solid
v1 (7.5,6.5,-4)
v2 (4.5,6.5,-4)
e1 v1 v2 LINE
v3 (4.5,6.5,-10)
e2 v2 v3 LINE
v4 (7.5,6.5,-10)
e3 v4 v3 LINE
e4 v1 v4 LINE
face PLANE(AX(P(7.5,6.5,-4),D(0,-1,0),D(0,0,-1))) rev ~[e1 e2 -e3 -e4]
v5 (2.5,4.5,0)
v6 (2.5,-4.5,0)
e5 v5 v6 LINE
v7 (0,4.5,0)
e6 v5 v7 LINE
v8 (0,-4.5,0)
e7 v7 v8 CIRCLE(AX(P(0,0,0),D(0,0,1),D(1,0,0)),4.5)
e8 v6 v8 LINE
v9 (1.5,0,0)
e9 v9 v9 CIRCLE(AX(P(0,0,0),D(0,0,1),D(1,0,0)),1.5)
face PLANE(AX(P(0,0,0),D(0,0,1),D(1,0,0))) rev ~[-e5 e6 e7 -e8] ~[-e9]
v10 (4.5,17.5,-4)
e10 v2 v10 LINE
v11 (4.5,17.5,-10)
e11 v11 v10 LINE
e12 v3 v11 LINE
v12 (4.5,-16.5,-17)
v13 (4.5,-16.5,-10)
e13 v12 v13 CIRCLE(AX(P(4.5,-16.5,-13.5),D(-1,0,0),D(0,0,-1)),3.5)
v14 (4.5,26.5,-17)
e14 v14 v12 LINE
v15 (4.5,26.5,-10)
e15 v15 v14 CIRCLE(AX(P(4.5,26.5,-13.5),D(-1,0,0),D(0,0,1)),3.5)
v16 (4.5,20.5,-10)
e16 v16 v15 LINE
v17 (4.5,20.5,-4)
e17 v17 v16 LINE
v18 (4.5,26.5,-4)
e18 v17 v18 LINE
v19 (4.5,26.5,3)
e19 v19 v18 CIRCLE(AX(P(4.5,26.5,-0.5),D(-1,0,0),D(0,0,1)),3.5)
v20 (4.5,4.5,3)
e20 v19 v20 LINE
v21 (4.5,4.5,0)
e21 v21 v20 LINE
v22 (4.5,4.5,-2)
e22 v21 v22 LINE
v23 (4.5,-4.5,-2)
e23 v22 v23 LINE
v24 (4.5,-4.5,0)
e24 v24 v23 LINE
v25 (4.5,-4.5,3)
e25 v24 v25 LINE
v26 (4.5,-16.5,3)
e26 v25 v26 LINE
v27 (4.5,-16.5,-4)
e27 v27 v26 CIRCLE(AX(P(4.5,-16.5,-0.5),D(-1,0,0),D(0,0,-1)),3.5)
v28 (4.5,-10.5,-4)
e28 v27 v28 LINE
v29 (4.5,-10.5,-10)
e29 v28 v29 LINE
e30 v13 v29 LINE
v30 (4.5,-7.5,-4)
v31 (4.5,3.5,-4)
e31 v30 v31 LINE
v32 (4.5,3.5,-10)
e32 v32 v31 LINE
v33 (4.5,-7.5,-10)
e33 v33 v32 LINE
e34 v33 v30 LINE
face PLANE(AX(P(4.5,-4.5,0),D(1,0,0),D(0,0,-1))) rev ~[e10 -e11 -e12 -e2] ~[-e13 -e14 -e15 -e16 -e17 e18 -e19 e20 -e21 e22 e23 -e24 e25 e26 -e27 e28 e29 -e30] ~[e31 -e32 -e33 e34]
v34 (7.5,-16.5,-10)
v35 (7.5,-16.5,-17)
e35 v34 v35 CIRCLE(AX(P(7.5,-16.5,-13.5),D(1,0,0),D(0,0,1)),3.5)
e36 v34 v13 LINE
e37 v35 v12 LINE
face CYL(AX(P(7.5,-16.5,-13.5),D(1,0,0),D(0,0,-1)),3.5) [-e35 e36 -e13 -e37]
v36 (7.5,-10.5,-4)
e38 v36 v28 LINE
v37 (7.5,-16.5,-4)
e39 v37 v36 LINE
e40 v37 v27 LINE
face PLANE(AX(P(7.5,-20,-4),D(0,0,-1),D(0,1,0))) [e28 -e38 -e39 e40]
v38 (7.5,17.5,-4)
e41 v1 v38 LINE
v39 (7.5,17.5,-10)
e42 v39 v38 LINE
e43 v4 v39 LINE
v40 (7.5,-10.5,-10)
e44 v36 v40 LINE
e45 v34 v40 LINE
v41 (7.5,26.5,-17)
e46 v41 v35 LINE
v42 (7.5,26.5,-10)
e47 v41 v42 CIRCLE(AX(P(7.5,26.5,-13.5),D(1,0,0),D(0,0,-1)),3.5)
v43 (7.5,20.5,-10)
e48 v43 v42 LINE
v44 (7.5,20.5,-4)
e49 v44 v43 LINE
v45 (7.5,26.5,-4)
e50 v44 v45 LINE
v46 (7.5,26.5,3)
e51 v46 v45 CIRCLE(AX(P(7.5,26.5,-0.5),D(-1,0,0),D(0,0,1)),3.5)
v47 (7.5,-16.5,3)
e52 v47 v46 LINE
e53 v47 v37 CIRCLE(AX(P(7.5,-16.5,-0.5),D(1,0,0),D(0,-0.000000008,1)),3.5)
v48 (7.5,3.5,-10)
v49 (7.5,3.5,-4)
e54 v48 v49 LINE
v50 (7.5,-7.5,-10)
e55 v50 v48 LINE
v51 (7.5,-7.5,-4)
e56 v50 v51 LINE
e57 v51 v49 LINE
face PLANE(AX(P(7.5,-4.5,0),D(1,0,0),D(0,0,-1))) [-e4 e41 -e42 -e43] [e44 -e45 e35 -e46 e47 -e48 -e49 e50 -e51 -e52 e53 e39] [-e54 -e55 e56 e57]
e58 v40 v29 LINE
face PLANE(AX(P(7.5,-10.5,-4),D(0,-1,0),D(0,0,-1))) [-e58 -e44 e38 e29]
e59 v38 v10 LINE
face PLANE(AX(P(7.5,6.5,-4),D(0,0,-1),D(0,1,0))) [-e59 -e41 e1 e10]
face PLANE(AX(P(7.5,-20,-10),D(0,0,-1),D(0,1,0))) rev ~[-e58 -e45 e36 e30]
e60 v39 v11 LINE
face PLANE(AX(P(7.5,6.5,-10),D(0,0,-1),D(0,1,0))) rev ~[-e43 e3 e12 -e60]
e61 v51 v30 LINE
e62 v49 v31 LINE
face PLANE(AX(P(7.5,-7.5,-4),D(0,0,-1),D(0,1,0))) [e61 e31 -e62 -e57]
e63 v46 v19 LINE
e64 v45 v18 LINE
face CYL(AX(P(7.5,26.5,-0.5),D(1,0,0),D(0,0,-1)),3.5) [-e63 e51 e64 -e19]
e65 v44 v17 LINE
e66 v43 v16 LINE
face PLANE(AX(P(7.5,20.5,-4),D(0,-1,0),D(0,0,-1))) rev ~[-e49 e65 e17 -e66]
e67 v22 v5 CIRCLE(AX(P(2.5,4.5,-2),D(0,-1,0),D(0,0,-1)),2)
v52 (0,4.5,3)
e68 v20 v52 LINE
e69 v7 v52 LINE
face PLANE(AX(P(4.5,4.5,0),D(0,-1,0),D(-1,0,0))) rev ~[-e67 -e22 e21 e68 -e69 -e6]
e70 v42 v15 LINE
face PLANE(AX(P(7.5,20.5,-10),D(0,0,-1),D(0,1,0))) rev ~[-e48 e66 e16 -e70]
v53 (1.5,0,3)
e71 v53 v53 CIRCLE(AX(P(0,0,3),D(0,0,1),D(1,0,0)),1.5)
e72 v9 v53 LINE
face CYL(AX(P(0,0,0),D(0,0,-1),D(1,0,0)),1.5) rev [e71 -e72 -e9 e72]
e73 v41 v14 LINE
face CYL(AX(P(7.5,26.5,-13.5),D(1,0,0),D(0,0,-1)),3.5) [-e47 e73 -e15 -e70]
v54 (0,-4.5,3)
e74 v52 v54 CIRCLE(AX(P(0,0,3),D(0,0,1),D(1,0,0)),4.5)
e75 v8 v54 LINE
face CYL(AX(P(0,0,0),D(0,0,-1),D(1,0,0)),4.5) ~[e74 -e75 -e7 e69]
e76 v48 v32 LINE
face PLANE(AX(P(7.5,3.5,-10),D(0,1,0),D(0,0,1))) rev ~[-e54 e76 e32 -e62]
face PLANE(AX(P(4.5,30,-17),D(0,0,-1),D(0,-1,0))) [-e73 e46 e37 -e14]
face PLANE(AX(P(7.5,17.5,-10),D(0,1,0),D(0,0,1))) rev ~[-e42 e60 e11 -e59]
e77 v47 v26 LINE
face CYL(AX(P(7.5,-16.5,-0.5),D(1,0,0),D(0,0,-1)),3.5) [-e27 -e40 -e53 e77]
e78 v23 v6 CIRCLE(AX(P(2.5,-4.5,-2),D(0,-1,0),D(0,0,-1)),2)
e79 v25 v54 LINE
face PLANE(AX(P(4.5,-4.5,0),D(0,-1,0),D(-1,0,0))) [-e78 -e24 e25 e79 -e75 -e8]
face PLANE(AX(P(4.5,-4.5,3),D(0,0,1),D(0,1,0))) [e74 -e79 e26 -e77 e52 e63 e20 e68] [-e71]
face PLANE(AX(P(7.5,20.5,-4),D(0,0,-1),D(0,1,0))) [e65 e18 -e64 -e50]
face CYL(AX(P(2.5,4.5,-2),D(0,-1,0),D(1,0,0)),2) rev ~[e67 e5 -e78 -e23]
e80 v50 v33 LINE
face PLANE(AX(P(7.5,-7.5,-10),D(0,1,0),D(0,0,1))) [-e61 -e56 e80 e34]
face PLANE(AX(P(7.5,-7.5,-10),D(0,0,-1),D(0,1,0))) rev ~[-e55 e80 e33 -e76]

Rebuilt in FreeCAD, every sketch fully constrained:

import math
import FreeCAD as App
import Part
import Sketcher
from FreeCAD import Vector


def edges_at(feature, points):
    """Names of the edges that pass closest to the given points."""
    edges = feature.Shape.Edges
    near = lambda p: min(range(len(edges)), key=lambda i: edges[i].distToShape(Part.Vertex(*p))[0])
    return sorted({f"Edge{near(p) + 1}" for p in points})

doc = App.newDocument("Part")
body = doc.addObject("PartDesign::Body", "Body")

# Sketch on XY plane
sketch1 = body.newObject("Sketcher::SketchObject", "Sketch")
sketch1.AttachmentSupport = (doc.getObject("XY_Plane"), [""])
sketch1.MapMode = "FlatFace"
sketch1.addGeometry([
    Part.ArcOfCircle(Part.Circle(Vector(0, 0, 0), Vector(0, 0, 1), 4.5), math.radians(90), math.radians(270)),  # 0
    Part.LineSegment(Vector(0, -4.5, 0), Vector(4.5, -4.5, 0)),  # 1
    Part.LineSegment(Vector(4.5, -4.5, 0), Vector(4.5, 4.5, 0)),  # 2
    Part.LineSegment(Vector(4.5, 4.5, 0), Vector(0, 4.5, 0)),  # 3
    Part.Circle(Vector(0, 0, 0), Vector(0, 0, 1), 1.5),  # 4
], False)
sketch1.addConstraint([
    Sketcher.Constraint("Tangent", 0, 2, 1, 1),
    Sketcher.Constraint("Coincident", 1, 2, 2, 1),
    Sketcher.Constraint("Coincident", 2, 2, 3, 1),
    Sketcher.Constraint("Tangent", 3, 2, 0, 1),
    Sketcher.Constraint("Horizontal", 1),
    Sketcher.Constraint("Vertical", 2),
    Sketcher.Constraint("Horizontal", 3),
    Sketcher.Constraint("Coincident", 0, 3, -1, 1),
    Sketcher.Constraint("Coincident", 4, 3, -1, 1),
    Sketcher.Constraint("Diameter", 4, 3.0),
    Sketcher.Constraint("Radius", 0, 4.5),
    Sketcher.Constraint("DistanceX", 1, 1, 1, 2, 4.5),
])
pad1 = body.newObject("PartDesign::Pad", "Pad")
pad1.Profile = sketch1
pad1.Length = 3

# Sketch on YZ plane
sketch2 = body.newObject("Sketcher::SketchObject", "Sketch001")
sketch2.AttachmentSupport = (doc.getObject("YZ_Plane"), [""])
sketch2.MapMode = "FlatFace"
sketch2.AttachmentOffset = App.Placement(Vector(0, 0, 4.5), App.Rotation())
sketch2.addGeometry([
    Part.LineSegment(Vector(-20, 3, 0), Vector(-20, -17, 0)),
    Part.LineSegment(Vector(-20, -17, 0), Vector(30, -17, 0)),
    Part.LineSegment(Vector(30, -17, 0), Vector(30, 3, 0)),
    Part.LineSegment(Vector(30, 3, 0), Vector(-20, 3, 0)),
], False)
sketch2.addConstraint([
    Sketcher.Constraint("Coincident", 0, 2, 1, 1),
    Sketcher.Constraint("Coincident", 1, 2, 2, 1),
    Sketcher.Constraint("Coincident", 2, 2, 3, 1),
    Sketcher.Constraint("Coincident", 3, 2, 0, 1),
    Sketcher.Constraint("Vertical", 0),
    Sketcher.Constraint("Horizontal", 1),
    Sketcher.Constraint("Vertical", 2),
    Sketcher.Constraint("Horizontal", 3),
    Sketcher.Constraint("DistanceX", 1, 1, 1, 2, 50.0),
    Sketcher.Constraint("DistanceY", 0, 2, 0, 1, 20.0),
    Sketcher.Constraint("DistanceX", 0, 2, -1, 1, 20.0),
    Sketcher.Constraint("DistanceY", 0, 2, -1, 1, 17.0),
])
pad2 = body.newObject("PartDesign::Pad", "Pad001")
pad2.Profile = sketch2
pad2.Length = 3

# Sketch on YZ plane
sketch3 = body.newObject("Sketcher::SketchObject", "Sketch002")
sketch3.AttachmentSupport = (doc.getObject("YZ_Plane"), [""])
sketch3.MapMode = "FlatFace"
sketch3.AttachmentOffset = App.Placement(Vector(0, 0, 7.5), App.Rotation())
sketch3.addGeometry([
    Part.LineSegment(Vector(-10, -4, 0), Vector(-20, -4, 0)),  # 0
    Part.LineSegment(Vector(-20, -4, 0), Vector(-20, -10, 0)),  # 1
    Part.LineSegment(Vector(-20, -10, 0), Vector(-10, -10, 0)),  # 2
    Part.LineSegment(Vector(-10, -10, 0), Vector(-10, -4, 0)),  # 3
    Part.LineSegment(Vector(4, -4, 0), Vector(-8, -4, 0)),  # 4
    Part.LineSegment(Vector(-8, -4, 0), Vector(-8, -10, 0)),  # 5
    Part.LineSegment(Vector(-8, -10, 0), Vector(4, -10, 0)),  # 6
    Part.LineSegment(Vector(4, -10, 0), Vector(4, -4, 0)),  # 7
    Part.LineSegment(Vector(30, -10, 0), Vector(30, -4, 0)),  # 8
    Part.LineSegment(Vector(30, -4, 0), Vector(20, -4, 0)),  # 9
    Part.LineSegment(Vector(20, -4, 0), Vector(20, -10, 0)),  # 10
    Part.LineSegment(Vector(20, -10, 0), Vector(30, -10, 0)),  # 11
    Part.LineSegment(Vector(18, -4, 0), Vector(6, -4, 0)),  # 12
    Part.LineSegment(Vector(6, -4, 0), Vector(6, -10, 0)),  # 13
    Part.LineSegment(Vector(6, -10, 0), Vector(18, -10, 0)),  # 14
    Part.LineSegment(Vector(18, -10, 0), Vector(18, -4, 0)),  # 15
], False)
sketch3.addConstraint([
    Sketcher.Constraint("Coincident", 0, 2, 1, 1),
    Sketcher.Constraint("Coincident", 1, 2, 2, 1),
    Sketcher.Constraint("Coincident", 2, 2, 3, 1),
    Sketcher.Constraint("Coincident", 3, 2, 0, 1),
    Sketcher.Constraint("Coincident", 4, 2, 5, 1),
    Sketcher.Constraint("Coincident", 5, 2, 6, 1),
    Sketcher.Constraint("Coincident", 6, 2, 7, 1),
    Sketcher.Constraint("Coincident", 7, 2, 4, 1),
    Sketcher.Constraint("Coincident", 8, 2, 9, 1),
    Sketcher.Constraint("Coincident", 9, 2, 10, 1),
    Sketcher.Constraint("Coincident", 10, 2, 11, 1),
    Sketcher.Constraint("Coincident", 11, 2, 8, 1),
    Sketcher.Constraint("Coincident", 12, 2, 13, 1),
    Sketcher.Constraint("Coincident", 13, 2, 14, 1),
    Sketcher.Constraint("Coincident", 14, 2, 15, 1),
    Sketcher.Constraint("Coincident", 15, 2, 12, 1),
    Sketcher.Constraint("Horizontal", 0),
    Sketcher.Constraint("Vertical", 1),
    Sketcher.Constraint("Horizontal", 2),
    Sketcher.Constraint("Vertical", 3),
    Sketcher.Constraint("Horizontal", 4),
    Sketcher.Constraint("Vertical", 5),
    Sketcher.Constraint("Horizontal", 6),
    Sketcher.Constraint("Vertical", 7),
    Sketcher.Constraint("Vertical", 8),
    Sketcher.Constraint("Horizontal", 9),
    Sketcher.Constraint("Vertical", 10),
    Sketcher.Constraint("Horizontal", 11),
    Sketcher.Constraint("Horizontal", 12),
    Sketcher.Constraint("Vertical", 13),
    Sketcher.Constraint("Horizontal", 14),
    Sketcher.Constraint("Vertical", 15),
    Sketcher.Constraint("Horizontal", 3, 2, 4, 2),
    Sketcher.Constraint("Horizontal", 2, 2, 5, 2),
    Sketcher.Constraint("Horizontal", 7, 2, 8, 2),
    Sketcher.Constraint("Horizontal", 6, 2, 10, 2),
    Sketcher.Constraint("Horizontal", 9, 2, 12, 2),
    Sketcher.Constraint("Horizontal", 11, 2, 13, 2),
    Sketcher.Constraint("Equal", 2, 9),
    Sketcher.Constraint("Equal", 6, 12),
    Sketcher.Constraint("DistanceY", 0, 2, -1, 1, 4.0),
    Sketcher.Constraint("DistanceX", 3, 2, 4, 2, 3.0),
    Sketcher.Constraint("DistanceX", 2, 2, 6, 2, 14.0),
    Sketcher.Constraint("DistanceX", 7, 2, 12, 2, 3.0),
    Sketcher.Constraint("DistanceX", 12, 2, 9, 2, 14.0),
    Sketcher.Constraint("DistanceY", 1, 2, 1, 1, 6.0),
    Sketcher.Constraint("DistanceX", 0, 2, 0, 1, 9.5),
    Sketcher.Constraint("DistanceX", 0, 2, -1, 1, 20.0),
])
pocket1 = body.newObject("PartDesign::Pocket", "Pocket")
pocket1.Profile = sketch3
pocket1.Length = 3

# Sketch on YZ plane
sketch4 = body.newObject("Sketcher::SketchObject", "Sketch003")
sketch4.AttachmentSupport = (doc.getObject("YZ_Plane"), [""])
sketch4.MapMode = "FlatFace"
sketch4.AttachmentOffset = App.Placement(Vector(0, 0, 7.5), App.Rotation())
sketch4.addGeometry([
    Part.ArcOfCircle(Part.Circle(Vector(-16.5, -13.5, 0), Vector(0, 0, 1), 3.5), math.radians(90), math.radians(180)),  # 0
    Part.LineSegment(Vector(-16.5, -10, 0), Vector(-20, -10, 0)),  # 1
    Part.LineSegment(Vector(-20, -10, 0), Vector(-20, -13.5, 0)),  # 2
    Part.LineSegment(Vector(-20, -17, 0), Vector(-16.5, -17, 0)),  # 3
    Part.ArcOfCircle(Part.Circle(Vector(-16.5, -13.5, 0), Vector(0, 0, 1), 3.5), math.radians(180), math.radians(270)),  # 4
    Part.LineSegment(Vector(-20, -13.5, 0), Vector(-20, -17, 0)),  # 5
    Part.LineSegment(Vector(-20, -4, 0), Vector(-16.5, -4, 0)),  # 6
    Part.ArcOfCircle(Part.Circle(Vector(-16.5, -0.5, 0), Vector(0, 0, 1), 3.5), math.radians(180), math.radians(270)),  # 7
    Part.LineSegment(Vector(-20, -0.5, 0), Vector(-20, -4, 0)),  # 8
    Part.ArcOfCircle(Part.Circle(Vector(26.5, -13.5, 0), Vector(0, 0, 1), 3.5), math.radians(-90), math.radians(0)),  # 9
    Part.LineSegment(Vector(26.5, -17, 0), Vector(30, -17, 0)),  # 10
    Part.LineSegment(Vector(30, -17, 0), Vector(30, -13.5, 0)),  # 11
    Part.LineSegment(Vector(-20, 3, 0), Vector(-20, -0.5, 0)),  # 12
    Part.ArcOfCircle(Part.Circle(Vector(-16.5, -0.5, 0), Vector(0, 0, 1), 3.5), math.radians(90), math.radians(180)),  # 13
    Part.LineSegment(Vector(-16.5, 3, 0), Vector(-20, 3, 0)),  # 14
    Part.ArcOfCircle(Part.Circle(Vector(26.5, -13.5, 0), Vector(0, 0, 1), 3.5), math.radians(0), math.radians(90)),  # 15
    Part.LineSegment(Vector(30, -13.5, 0), Vector(30, -10, 0)),  # 16
    Part.LineSegment(Vector(30, -10, 0), Vector(26.5, -10, 0)),  # 17
    Part.LineSegment(Vector(30, 3, 0), Vector(26.5, 3, 0)),  # 18
    Part.ArcOfCircle(Part.Circle(Vector(26.5, -0.5, 0), Vector(0, 0, 1), 3.5), math.radians(0), math.radians(90)),  # 19
    Part.LineSegment(Vector(30, -0.5, 0), Vector(30, 3, 0)),  # 20
    Part.LineSegment(Vector(30, -4, 0), Vector(30, -0.5, 0)),  # 21
    Part.ArcOfCircle(Part.Circle(Vector(26.5, -0.5, 0), Vector(0, 0, 1), 3.5), math.radians(-90), math.radians(0)),  # 22
    Part.LineSegment(Vector(26.5, -4, 0), Vector(30, -4, 0)),  # 23
], False)
sketch4.addConstraint([
    Sketcher.Constraint("Tangent", 0, 1, 1, 1),
    Sketcher.Constraint("Coincident", 1, 2, 2, 1),
    Sketcher.Constraint("Tangent", 2, 2, 0, 2),
    Sketcher.Constraint("Tangent", 3, 2, 4, 2),
    Sketcher.Constraint("Tangent", 4, 1, 5, 1),
    Sketcher.Constraint("Coincident", 5, 2, 3, 1),
    Sketcher.Constraint("Tangent", 6, 2, 7, 2),
    Sketcher.Constraint("Tangent", 7, 1, 8, 1),
    Sketcher.Constraint("Coincident", 8, 2, 6, 1),
    Sketcher.Constraint("Tangent", 9, 1, 10, 1),
    Sketcher.Constraint("Coincident", 10, 2, 11, 1),
    Sketcher.Constraint("Tangent", 11, 2, 9, 2),
    Sketcher.Constraint("Tangent", 12, 2, 13, 2),
    Sketcher.Constraint("Tangent", 13, 1, 14, 1),
    Sketcher.Constraint("Coincident", 14, 2, 12, 1),
    Sketcher.Constraint("Tangent", 15, 1, 16, 1),
    Sketcher.Constraint("Coincident", 16, 2, 17, 1),
    Sketcher.Constraint("Tangent", 17, 2, 15, 2),
    Sketcher.Constraint("Tangent", 18, 2, 19, 2),
    Sketcher.Constraint("Tangent", 19, 1, 20, 1),
    Sketcher.Constraint("Coincident", 20, 2, 18, 1),
    Sketcher.Constraint("Tangent", 21, 2, 22, 2),
    Sketcher.Constraint("Tangent", 22, 1, 23, 1),
    Sketcher.Constraint("Coincident", 23, 2, 21, 1),
    Sketcher.Constraint("Horizontal", 1),
    Sketcher.Constraint("Vertical", 2),
    Sketcher.Constraint("Horizontal", 3),
    Sketcher.Constraint("Vertical", 5),
    Sketcher.Constraint("Horizontal", 6),
    Sketcher.Constraint("Vertical", 8),
    Sketcher.Constraint("Horizontal", 10),
    Sketcher.Constraint("Vertical", 11),
    Sketcher.Constraint("Vertical", 12),
    Sketcher.Constraint("Horizontal", 14),
    Sketcher.Constraint("Vertical", 16),
    Sketcher.Constraint("Horizontal", 17),
    Sketcher.Constraint("Horizontal", 18),
    Sketcher.Constraint("Vertical", 20),
    Sketcher.Constraint("Vertical", 21),
    Sketcher.Constraint("Horizontal", 23),
    Sketcher.Constraint("Coincident", 4, 3, 0, 3),
    Sketcher.Constraint("Coincident", 13, 3, 7, 3),
    Sketcher.Constraint("Coincident", 15, 3, 9, 3),
    Sketcher.Constraint("Coincident", 22, 3, 19, 3),
    Sketcher.Constraint("Equal", 0, 4),
    Sketcher.Constraint("Equal", 4, 7),
    Sketcher.Constraint("Equal", 7, 9),
    Sketcher.Constraint("Equal", 9, 13),
    Sketcher.Constraint("Equal", 13, 15),
    Sketcher.Constraint("Equal", 15, 19),
    Sketcher.Constraint("Equal", 19, 22),
    Sketcher.Constraint("Horizontal", 4, 3, 9, 3),
    Sketcher.Constraint("Horizontal", 13, 3, 19, 3),
    Sketcher.Constraint("Vertical", 4, 3, 7, 3),
    Sketcher.Constraint("Vertical", 15, 3, 19, 3),
    Sketcher.Constraint("Radius", 0, 3.5),
    Sketcher.Constraint("DistanceY", 0, 1, -1, 1, 10.0),
    Sketcher.Constraint("DistanceX", 1, 2, -1, 1, 20.0),
    Sketcher.Constraint("DistanceY", 6, 2, -1, 1, 4.0),
    Sketcher.Constraint("DistanceX", -1, 1, 10, 2, 30.0),
])
pocket2 = body.newObject("PartDesign::Pocket", "Pocket001")
pocket2.Profile = sketch4
pocket2.Length = 3
doc.recompute()

fillet = body.newObject("PartDesign::Fillet", "Fillet")
fillet.Base = (pocket2, edges_at(pocket2, [(4.5, 0, 0)]))
fillet.Radius = 2

doc.recompute()
